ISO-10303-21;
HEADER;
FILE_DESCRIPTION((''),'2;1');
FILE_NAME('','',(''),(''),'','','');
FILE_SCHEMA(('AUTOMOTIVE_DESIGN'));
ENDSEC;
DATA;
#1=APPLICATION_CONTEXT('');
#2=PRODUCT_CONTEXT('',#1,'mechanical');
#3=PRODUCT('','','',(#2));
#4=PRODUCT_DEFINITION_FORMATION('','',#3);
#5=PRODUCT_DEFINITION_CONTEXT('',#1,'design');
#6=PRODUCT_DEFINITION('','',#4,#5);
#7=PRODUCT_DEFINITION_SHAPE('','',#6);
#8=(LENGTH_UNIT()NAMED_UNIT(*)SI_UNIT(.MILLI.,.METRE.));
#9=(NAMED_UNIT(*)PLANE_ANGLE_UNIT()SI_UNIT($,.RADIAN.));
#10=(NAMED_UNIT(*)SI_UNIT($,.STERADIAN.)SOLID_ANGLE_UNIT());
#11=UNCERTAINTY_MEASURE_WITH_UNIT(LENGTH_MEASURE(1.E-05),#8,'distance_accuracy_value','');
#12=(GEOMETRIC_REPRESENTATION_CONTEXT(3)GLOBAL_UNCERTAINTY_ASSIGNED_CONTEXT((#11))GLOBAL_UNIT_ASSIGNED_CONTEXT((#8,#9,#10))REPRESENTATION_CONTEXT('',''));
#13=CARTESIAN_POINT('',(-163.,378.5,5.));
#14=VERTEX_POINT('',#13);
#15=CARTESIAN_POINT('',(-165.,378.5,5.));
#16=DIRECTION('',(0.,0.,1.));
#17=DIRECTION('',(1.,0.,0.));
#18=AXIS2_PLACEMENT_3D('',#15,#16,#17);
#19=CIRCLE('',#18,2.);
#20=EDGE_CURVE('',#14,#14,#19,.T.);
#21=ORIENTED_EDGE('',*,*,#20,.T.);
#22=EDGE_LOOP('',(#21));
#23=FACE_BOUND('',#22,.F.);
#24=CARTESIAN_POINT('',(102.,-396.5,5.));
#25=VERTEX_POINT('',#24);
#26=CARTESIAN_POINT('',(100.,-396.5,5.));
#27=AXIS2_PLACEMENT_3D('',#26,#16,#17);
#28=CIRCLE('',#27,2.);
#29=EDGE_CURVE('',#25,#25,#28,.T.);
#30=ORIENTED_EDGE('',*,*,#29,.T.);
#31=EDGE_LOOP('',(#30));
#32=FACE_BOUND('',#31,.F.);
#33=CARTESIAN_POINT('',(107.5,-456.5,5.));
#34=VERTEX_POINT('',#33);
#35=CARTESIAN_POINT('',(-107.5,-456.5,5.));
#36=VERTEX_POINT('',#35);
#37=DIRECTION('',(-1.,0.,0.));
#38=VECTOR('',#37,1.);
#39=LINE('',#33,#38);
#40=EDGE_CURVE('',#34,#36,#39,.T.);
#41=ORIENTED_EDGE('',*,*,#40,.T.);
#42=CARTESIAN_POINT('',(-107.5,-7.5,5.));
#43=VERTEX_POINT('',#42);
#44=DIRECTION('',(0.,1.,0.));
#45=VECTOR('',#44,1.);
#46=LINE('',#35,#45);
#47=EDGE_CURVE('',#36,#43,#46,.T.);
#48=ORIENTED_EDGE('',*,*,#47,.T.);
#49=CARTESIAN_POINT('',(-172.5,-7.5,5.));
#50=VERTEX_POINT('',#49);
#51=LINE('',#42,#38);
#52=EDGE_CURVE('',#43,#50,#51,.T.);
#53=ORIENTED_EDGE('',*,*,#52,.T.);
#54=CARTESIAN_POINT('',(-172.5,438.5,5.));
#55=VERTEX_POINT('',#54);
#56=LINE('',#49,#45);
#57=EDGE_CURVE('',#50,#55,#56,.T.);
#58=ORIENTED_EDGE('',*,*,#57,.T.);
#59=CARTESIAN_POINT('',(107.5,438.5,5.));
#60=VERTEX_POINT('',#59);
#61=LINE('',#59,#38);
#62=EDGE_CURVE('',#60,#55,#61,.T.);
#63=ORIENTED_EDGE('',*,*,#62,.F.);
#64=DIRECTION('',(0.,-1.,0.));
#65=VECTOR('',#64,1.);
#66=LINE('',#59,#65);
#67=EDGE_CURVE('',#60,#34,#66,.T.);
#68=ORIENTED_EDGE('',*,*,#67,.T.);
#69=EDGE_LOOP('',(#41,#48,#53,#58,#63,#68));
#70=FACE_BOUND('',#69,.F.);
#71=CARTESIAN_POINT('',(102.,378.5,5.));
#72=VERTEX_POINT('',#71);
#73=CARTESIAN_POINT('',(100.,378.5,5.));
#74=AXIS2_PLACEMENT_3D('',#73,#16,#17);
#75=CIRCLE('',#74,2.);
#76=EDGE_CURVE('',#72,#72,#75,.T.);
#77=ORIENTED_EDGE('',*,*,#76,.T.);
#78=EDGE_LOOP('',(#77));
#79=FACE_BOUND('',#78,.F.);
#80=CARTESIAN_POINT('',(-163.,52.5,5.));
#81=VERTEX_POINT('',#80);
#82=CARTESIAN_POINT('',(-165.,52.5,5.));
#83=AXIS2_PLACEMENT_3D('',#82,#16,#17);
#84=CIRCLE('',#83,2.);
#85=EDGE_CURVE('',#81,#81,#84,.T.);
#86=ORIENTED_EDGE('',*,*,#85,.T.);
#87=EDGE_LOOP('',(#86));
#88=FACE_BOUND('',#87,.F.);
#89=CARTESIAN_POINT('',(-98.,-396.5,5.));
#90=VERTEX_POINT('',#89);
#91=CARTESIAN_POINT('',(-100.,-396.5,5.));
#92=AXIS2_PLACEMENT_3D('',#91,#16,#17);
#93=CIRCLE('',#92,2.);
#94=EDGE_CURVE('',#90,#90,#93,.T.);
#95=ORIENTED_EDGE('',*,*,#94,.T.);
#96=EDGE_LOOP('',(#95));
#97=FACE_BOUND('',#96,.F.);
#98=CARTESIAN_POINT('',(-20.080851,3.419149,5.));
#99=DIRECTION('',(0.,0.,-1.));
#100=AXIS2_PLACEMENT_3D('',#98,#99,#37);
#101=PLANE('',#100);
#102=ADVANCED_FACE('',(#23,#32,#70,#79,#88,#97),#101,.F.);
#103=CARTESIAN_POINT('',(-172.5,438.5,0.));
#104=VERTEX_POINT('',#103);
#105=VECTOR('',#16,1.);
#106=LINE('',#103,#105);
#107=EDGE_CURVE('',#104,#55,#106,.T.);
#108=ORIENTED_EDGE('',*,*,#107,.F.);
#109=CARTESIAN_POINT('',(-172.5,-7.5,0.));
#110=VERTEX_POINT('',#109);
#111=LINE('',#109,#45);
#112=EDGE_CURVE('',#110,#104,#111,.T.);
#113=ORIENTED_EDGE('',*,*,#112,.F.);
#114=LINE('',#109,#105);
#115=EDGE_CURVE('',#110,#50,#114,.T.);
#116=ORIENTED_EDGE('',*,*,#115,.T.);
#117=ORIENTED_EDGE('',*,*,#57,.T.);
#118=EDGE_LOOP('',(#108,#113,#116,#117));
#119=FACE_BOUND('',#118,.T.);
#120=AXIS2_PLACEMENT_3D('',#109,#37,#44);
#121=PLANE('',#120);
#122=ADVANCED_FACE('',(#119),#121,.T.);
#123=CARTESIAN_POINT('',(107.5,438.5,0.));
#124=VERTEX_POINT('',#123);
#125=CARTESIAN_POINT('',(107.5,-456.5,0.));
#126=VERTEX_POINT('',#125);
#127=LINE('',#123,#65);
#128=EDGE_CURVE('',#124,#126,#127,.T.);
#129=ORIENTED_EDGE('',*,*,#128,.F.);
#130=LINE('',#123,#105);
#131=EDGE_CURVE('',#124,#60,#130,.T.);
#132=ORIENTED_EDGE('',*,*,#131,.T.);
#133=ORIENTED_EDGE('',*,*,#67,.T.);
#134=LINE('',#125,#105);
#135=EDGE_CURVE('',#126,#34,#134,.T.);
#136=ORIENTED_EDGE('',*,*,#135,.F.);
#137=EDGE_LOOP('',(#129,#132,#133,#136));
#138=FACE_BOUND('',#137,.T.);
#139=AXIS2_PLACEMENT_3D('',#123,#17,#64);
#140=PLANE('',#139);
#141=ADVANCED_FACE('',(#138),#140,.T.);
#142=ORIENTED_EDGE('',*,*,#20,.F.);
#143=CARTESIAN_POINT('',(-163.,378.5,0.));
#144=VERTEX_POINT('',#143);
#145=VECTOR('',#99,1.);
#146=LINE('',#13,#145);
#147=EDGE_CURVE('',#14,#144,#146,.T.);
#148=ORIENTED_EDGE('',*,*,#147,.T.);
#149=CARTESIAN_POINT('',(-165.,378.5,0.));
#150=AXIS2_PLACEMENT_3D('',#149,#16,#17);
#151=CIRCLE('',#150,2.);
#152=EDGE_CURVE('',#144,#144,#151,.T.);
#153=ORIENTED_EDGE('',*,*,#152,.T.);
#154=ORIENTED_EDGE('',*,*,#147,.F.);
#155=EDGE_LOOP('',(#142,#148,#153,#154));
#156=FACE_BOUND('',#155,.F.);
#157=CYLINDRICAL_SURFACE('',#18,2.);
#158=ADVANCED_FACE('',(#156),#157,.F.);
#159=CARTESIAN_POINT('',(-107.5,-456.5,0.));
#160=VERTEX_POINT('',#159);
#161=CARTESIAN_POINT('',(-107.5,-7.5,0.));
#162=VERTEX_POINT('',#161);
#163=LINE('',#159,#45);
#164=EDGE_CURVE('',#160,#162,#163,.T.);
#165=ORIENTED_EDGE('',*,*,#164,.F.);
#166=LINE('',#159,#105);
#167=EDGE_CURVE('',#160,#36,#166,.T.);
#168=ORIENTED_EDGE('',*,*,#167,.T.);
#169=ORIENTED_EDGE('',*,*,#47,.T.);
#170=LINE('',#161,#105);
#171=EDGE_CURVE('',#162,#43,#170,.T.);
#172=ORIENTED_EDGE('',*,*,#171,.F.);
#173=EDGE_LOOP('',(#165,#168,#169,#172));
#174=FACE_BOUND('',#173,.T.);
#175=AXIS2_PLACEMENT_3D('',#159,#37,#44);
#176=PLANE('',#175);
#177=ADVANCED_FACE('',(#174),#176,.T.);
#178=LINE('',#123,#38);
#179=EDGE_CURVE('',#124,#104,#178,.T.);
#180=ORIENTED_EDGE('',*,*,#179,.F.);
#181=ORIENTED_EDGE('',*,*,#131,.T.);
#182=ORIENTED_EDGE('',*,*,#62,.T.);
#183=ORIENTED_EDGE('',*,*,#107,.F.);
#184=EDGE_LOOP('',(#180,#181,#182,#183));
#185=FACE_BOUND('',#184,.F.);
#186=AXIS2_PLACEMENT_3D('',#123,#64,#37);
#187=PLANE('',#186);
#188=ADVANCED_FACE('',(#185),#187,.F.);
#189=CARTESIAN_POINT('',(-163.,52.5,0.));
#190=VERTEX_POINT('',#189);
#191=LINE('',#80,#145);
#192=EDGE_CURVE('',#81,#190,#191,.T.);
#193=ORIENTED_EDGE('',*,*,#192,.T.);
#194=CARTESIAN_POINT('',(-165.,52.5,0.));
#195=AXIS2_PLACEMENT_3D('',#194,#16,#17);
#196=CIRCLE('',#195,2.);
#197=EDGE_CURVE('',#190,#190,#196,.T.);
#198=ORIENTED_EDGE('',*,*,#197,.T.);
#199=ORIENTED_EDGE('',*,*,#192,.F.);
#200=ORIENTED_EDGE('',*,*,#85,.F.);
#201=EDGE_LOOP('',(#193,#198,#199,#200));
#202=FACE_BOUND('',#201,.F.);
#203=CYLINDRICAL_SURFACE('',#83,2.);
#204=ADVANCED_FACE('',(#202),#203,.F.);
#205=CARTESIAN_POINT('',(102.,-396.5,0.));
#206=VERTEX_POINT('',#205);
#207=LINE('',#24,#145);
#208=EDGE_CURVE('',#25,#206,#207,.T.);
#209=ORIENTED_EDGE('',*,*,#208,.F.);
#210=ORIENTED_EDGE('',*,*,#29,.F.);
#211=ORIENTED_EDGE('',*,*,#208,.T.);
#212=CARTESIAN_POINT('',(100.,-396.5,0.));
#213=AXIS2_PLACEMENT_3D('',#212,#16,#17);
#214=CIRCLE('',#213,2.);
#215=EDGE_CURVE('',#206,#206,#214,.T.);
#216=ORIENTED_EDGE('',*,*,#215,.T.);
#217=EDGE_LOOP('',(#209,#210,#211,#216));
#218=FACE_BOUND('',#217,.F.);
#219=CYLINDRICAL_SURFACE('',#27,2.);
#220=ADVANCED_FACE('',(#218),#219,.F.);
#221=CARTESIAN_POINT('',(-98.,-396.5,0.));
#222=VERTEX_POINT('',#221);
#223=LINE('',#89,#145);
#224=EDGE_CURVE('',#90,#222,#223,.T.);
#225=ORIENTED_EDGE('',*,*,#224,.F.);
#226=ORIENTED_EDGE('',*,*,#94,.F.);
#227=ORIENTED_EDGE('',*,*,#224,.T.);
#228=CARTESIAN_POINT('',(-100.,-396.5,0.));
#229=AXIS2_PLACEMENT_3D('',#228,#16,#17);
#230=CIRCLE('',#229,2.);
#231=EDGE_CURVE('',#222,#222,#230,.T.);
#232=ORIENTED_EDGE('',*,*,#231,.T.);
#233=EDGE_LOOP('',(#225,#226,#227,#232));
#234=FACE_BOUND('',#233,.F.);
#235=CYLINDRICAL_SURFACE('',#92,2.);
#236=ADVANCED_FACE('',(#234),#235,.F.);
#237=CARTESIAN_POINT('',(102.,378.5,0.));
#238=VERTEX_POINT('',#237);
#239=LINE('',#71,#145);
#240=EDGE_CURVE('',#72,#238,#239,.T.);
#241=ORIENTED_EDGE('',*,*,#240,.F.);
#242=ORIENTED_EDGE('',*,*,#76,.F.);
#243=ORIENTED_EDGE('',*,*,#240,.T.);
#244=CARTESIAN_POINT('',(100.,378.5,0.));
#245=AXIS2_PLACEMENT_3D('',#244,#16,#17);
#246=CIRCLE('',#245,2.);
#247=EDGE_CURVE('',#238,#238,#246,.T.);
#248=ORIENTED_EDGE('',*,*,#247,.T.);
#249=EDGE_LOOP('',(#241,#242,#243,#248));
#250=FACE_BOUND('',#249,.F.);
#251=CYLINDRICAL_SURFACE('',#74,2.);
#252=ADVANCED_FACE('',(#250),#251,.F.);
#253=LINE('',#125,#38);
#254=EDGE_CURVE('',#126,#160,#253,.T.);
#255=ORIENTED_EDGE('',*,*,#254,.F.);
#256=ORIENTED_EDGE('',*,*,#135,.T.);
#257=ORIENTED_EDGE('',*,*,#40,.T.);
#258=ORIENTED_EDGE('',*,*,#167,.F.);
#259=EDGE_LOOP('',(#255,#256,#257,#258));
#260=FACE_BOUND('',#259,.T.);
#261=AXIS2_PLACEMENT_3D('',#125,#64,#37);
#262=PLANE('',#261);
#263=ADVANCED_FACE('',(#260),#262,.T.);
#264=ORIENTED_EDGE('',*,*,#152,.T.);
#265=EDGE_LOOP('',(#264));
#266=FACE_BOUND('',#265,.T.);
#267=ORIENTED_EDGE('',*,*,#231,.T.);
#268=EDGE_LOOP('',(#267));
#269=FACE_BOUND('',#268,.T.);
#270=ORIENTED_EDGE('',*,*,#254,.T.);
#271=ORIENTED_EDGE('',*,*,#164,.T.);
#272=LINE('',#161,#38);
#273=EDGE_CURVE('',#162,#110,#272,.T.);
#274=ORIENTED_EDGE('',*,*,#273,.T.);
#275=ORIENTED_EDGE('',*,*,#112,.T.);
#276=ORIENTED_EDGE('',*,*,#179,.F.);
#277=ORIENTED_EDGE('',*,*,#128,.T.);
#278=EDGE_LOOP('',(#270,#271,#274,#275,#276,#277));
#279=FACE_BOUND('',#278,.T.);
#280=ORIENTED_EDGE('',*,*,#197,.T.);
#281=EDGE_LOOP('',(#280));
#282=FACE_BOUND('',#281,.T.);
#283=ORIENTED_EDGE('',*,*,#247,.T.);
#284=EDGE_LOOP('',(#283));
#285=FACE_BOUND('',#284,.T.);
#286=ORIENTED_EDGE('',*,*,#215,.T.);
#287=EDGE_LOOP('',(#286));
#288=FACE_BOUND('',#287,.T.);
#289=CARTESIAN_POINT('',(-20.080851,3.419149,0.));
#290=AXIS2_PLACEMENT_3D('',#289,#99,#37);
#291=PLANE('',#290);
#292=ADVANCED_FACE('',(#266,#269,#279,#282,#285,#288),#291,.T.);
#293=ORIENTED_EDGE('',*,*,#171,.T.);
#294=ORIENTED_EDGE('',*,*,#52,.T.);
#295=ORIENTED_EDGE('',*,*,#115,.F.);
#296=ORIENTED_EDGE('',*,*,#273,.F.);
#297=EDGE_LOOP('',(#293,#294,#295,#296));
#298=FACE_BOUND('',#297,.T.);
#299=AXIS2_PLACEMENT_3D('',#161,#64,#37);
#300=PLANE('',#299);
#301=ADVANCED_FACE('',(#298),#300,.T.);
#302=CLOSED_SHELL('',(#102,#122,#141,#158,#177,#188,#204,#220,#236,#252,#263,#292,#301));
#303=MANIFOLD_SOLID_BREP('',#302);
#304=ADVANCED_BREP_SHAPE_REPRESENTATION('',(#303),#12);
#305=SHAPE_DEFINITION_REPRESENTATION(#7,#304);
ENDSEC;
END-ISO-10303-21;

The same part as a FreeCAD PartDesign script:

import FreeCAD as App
import Part
import Sketcher

V = App.Vector
Q = App.Units.Quantity


def add_polygon(sketch, points):
    """Adds a closed chain of lines whose ends are joined by coincident constraints."""
    first, n = sketch.GeometryCount, len(points)
    for a, b in zip(points, points[1:] + points[:1]):
        sketch.addGeometry(Part.LineSegment(App.Vector(*a, 0), App.Vector(*b, 0)), False)
    for i in range(n):
        sketch.addConstraint(Sketcher.Constraint("Coincident", first + i, 2, first + (i + 1) % n, 1))

doc = App.newDocument("Part")
body = doc.addObject("PartDesign::Body", "Body")

sketch1 = doc.addObject("Sketcher::SketchObject", "Sketch")
body.addObject(sketch1)
sketch1.AttachmentSupport = (doc.XY_Plane, [""])
sketch1.MapMode = "FlatFace"
add_polygon(sketch1, [(107.5, 438.5), (-172.5, 438.5), (-172.5, -7.5), (-107.5, -7.5), (-107.5, -456.5), (107.5, -456.5)])
sketch1.addConstraint([
    Sketcher.Constraint("Horizontal", 0),
    Sketcher.Constraint("Vertical", 1),
    Sketcher.Constraint("Horizontal", 2),
    Sketcher.Constraint("Vertical", 3),
    Sketcher.Constraint("Horizontal", 4),
    Sketcher.Constraint("Vertical", 5),
    Sketcher.Constraint("DistanceX", 0, 2, 0, 1, Q("280 mm")),
    Sketcher.Constraint("DistanceX", 2, 1, 2, 2, Q("65 mm")),
    Sketcher.Constraint("DistanceY", 1, 2, 1, 1, Q("446 mm")),
    Sketcher.Constraint("DistanceY", 3, 2, 3, 1, Q("449 mm")),
    Sketcher.Constraint("DistanceX", 0, 2, -1, 1, Q("172.5 mm")),
    Sketcher.Constraint("DistanceY", -1, 1, 0, 2, Q("438.5 mm")),
])
pad1 = doc.addObject("PartDesign::Pad", "Pad")
body.addObject(pad1)
pad1.Profile = sketch1
pad1.Length = 5

sketch2 = doc.addObject("Sketcher::SketchObject", "Sketch001")
body.addObject(sketch2)
sketch2.AttachmentSupport = (doc.XY_Plane, [""])
sketch2.MapMode = "FlatFace"
sketch2.AttachmentOffset = App.Placement(V(0, 0, 5), App.Rotation())
sketch2.addGeometry([
    Part.Circle(V(-165, 378.5, 0), V(0, 0, 1), 2),
    Part.Circle(V(-165, 52.5, 0), V(0, 0, 1), 2),
    Part.Circle(V(-100, -396.5, 0), V(0, 0, 1), 2),
    Part.Circle(V(100, -396.5, 0), V(0, 0, 1), 2),
    Part.Circle(V(100, 378.5, 0), V(0, 0, 1), 2),
], False)
sketch2.addConstraint([
    Sketcher.Constraint("Equal", 0, 1),
    Sketcher.Constraint("Equal", 1, 2),
    Sketcher.Constraint("Equal", 2, 3),
    Sketcher.Constraint("Equal", 3, 4),
    Sketcher.Constraint("Symmetric", 2, 3, 3, 3, -2),
    Sketcher.Constraint("Horizontal", 0, 3, 4, 3),
    Sketcher.Constraint("Vertical", 0, 3, 1, 3),
    Sketcher.Constraint("Vertical", 3, 3, 4, 3),
    Sketcher.Constraint("Diameter", 0, Q("4 mm")),
    Sketcher.Constraint("DistanceX", 0, 3, -1, 1, Q("165 mm")),
    Sketcher.Constraint("DistanceX", 2, 3, -1, 1, Q("100 mm")),
    Sketcher.Constraint("DistanceY", 1, 3, 0, 3, Q("326 mm")),
    Sketcher.Constraint("DistanceY", 2, 3, 1, 3, Q("449 mm")),
    Sketcher.Constraint("DistanceY", -1, 1, 0, 3, Q("378.5 mm")),
])
pocket1 = doc.addObject("PartDesign::Pocket", "Pocket")
body.addObject(pocket1)
pocket1.Profile = sketch2
pocket1.Length = 5

doc.recompute()
